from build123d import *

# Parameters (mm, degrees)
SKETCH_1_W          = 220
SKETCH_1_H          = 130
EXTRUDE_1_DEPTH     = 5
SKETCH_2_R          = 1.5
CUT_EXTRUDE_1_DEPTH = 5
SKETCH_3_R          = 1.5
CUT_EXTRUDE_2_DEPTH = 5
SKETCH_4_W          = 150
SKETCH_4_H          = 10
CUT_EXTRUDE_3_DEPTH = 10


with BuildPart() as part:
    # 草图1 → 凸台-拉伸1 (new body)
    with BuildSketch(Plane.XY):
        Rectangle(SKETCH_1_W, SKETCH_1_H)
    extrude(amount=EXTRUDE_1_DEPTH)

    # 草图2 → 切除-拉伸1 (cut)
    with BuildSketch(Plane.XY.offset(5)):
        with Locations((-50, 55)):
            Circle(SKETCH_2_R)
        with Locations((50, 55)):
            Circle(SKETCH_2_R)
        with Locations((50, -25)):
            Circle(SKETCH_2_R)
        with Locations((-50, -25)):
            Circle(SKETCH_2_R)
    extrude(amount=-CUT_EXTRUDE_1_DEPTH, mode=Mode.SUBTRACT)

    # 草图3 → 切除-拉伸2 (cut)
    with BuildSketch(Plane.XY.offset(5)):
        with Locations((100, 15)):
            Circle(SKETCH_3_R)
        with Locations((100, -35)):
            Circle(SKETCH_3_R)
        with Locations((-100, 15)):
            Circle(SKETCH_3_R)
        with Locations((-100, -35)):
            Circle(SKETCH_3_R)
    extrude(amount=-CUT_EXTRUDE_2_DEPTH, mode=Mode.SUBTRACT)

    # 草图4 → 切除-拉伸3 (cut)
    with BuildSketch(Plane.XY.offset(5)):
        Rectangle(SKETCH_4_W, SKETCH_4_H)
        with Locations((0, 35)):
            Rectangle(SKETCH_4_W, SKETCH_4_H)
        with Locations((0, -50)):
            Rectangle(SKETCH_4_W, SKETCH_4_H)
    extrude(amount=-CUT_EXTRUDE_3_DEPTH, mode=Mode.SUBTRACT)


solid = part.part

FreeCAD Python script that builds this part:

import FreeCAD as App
import Part
import Sketcher
Q = App.Units.Quantity

doc = App.newDocument("Part")
body = doc.addObject("PartDesign::Body", "Body")

# Sketch on XY plane
sketch1 = doc.addObject("Sketcher::SketchObject", "Sketch")
body.addObject(sketch1)
sketch1.AttachmentSupport = (doc.XY_Plane, [""])
sketch1.MapMode = "FlatFace"
sketch1.addGeometry([
    Part.LineSegment(App.Vector(-110, 65, 0), App.Vector(-110, -65, 0)),
    Part.LineSegment(App.Vector(-110, -65, 0), App.Vector(110, -65, 0)),
    Part.LineSegment(App.Vector(110, -65, 0), App.Vector(110, 65, 0)),
    Part.LineSegment(App.Vector(110, 65, 0), App.Vector(-110, 65, 0)),
], False)
sketch1.addConstraint([
    Sketcher.Constraint("Coincident", 0, 2, 1, 1),
    Sketcher.Constraint("Coincident", 1, 2, 2, 1),
    Sketcher.Constraint("Coincident", 2, 2, 3, 1),
    Sketcher.Constraint("Coincident", 3, 2, 0, 1),
    Sketcher.Constraint("Vertical", 0),
    Sketcher.Constraint("Horizontal", 1),
    Sketcher.Constraint("Vertical", 2),
    Sketcher.Constraint("Horizontal", 3),
    Sketcher.Constraint("Symmetric", 0, 2, 2, 2, -1, 1),
    Sketcher.Constraint("DistanceX", 1, 1, 1, 2, Q("220 mm")),
    Sketcher.Constraint("DistanceY", 0, 2, 0, 1, Q("130 mm")),
])
pad1 = doc.addObject("PartDesign::Pad", "Pad")
body.addObject(pad1)
pad1.Profile = sketch1
pad1.Length = 5

# Sketch on XY plane
sketch2 = doc.addObject("Sketcher::SketchObject", "Sketch001")
body.addObject(sketch2)
sketch2.AttachmentSupport = (doc.XY_Plane, [""])
sketch2.MapMode = "FlatFace"
sketch2.AttachmentOffset = App.Placement(App.Vector(0, 0, 5), App.Rotation())
sketch2.addGeometry([
    Part.Circle(App.Vector(-50, 55, 0), App.Vector(0, 0, 1), 1.5),
    Part.Circle(App.Vector(50, 55, 0), App.Vector(0, 0, 1), 1.5),
    Part.Circle(App.Vector(50, -25, 0), App.Vector(0, 0, 1), 1.5),
    Part.Circle(App.Vector(-50, -25, 0), App.Vector(0, 0, 1), 1.5),
], False)
sketch2.addConstraint([
    Sketcher.Constraint("Equal", 0, 1),
    Sketcher.Constraint("Equal", 1, 2),
    Sketcher.Constraint("Equal", 2, 3),
    Sketcher.Constraint("Symmetric", 0, 3, 1, 3, -2),
    Sketcher.Constraint("Symmetric", 2, 3, 3, 3, -2),
    Sketcher.Constraint("Vertical", 1, 3, 2, 3),
    Sketcher.Constraint("Diameter", 0, Q("3 mm")),
    Sketcher.Constraint("DistanceX", 0, 3, -1, 1, Q("50 mm")),
    Sketcher.Constraint("DistanceY", -1, 1, 0, 3, Q("55 mm")),
    Sketcher.Constraint("DistanceY", 2, 3, -1, 1, Q("25 mm")),
])
pocket1 = doc.addObject("PartDesign::Pocket", "Pocket")
body.addObject(pocket1)
pocket1.Profile = sketch2
pocket1.Length = 5

# Sketch on XY plane
sketch3 = doc.addObject("Sketcher::SketchObject", "Sketch002")
body.addObject(sketch3)
sketch3.AttachmentSupport = (doc.XY_Plane, [""])
sketch3.MapMode = "FlatFace"
sketch3.AttachmentOffset = App.Placement(App.Vector(0, 0, 5), App.Rotation())
sketch3.addGeometry([
    Part.Circle(App.Vector(100, 15, 0), App.Vector(0, 0, 1), 1.5),
    Part.Circle(App.Vector(100, -35, 0), App.Vector(0, 0, 1), 1.5),
    Part.Circle(App.Vector(-100, 15, 0), App.Vector(0, 0, 1), 1.5),
    Part.Circle(App.Vector(-100, -35, 0), App.Vector(0, 0, 1), 1.5),
], False)
sketch3.addConstraint([
    Sketcher.Constraint("Equal", 0, 1),
    Sketcher.Constraint("Equal", 1, 2),
    Sketcher.Constraint("Equal", 2, 3),
    Sketcher.Constraint("Symmetric", 0, 3, 2, 3, -2),
    Sketcher.Constraint("Symmetric", 1, 3, 3, 3, -2),
    Sketcher.Constraint("Vertical", 0, 3, 1, 3),
    Sketcher.Constraint("Diameter", 0, Q("3 mm")),
    Sketcher.Constraint("DistanceX", -1, 1, 0, 3, Q("100 mm")),
    Sketcher.Constraint("DistanceY", -1, 1, 0, 3, Q("15 mm")),
    Sketcher.Constraint("DistanceY", 1, 3, -1, 1, Q("35 mm")),
])
pocket2 = doc.addObject("PartDesign::Pocket", "Pocket001")
body.addObject(pocket2)
pocket2.Profile = sketch3
pocket2.Length = 5

# Sketch on XY plane
sketch4 = doc.addObject("Sketcher::SketchObject", "Sketch003")
body.addObject(sketch4)
sketch4.AttachmentSupport = (doc.XY_Plane, [""])
sketch4.MapMode = "FlatFace"
sketch4.AttachmentOffset = App.Placement(App.Vector(0, 0, 5), App.Rotation())
sketch4.addGeometry([
    Part.LineSegment(App.Vector(-75, 5, 0), App.Vector(-75, -5, 0)),  # 0
    Part.LineSegment(App.Vector(-75, -5, 0), App.Vector(75, -5, 0)),  # 1
    Part.LineSegment(App.Vector(75, -5, 0), App.Vector(75, 5, 0)),  # 2
    Part.LineSegment(App.Vector(75, 5, 0), App.Vector(-75, 5, 0)),  # 3
    Part.LineSegment(App.Vector(-75, 40, 0), App.Vector(-75, 30, 0)),  # 4
    Part.LineSegment(App.Vector(-75, 30, 0), App.Vector(75, 30, 0)),  # 5
    Part.LineSegment(App.Vector(75, 30, 0), App.Vector(75, 40, 0)),  # 6
    Part.LineSegment(App.Vector(75, 40, 0), App.Vector(-75, 40, 0)),  # 7
    Part.LineSegment(App.Vector(-75, -45, 0), App.Vector(-75, -55, 0)),  # 8
    Part.LineSegment(App.Vector(-75, -55, 0), App.Vector(75, -55, 0)),  # 9
    Part.LineSegment(App.Vector(75, -55, 0), App.Vector(75, -45, 0)),  # 10
    Part.LineSegment(App.Vector(75, -45, 0), App.Vector(-75, -45, 0)),  # 11
], False)
sketch4.addConstraint([
    Sketcher.Constraint("Coincident", 0, 2, 1, 1),
    Sketcher.Constraint("Coincident", 1, 2, 2, 1),
    Sketcher.Constraint("Coincident", 2, 2, 3, 1),
    Sketcher.Constraint("Coincident", 3, 2, 0, 1),
    Sketcher.Constraint("Coincident", 4, 2, 5, 1),
    Sketcher.Constraint("Coincident", 5, 2, 6, 1),
    Sketcher.Constraint("Coincident", 6, 2, 7, 1),
    Sketcher.Constraint("Coincident", 7, 2, 4, 1),
    Sketcher.Constraint("Coincident", 8, 2, 9, 1),
    Sketcher.Constraint("Coincident", 9, 2, 10, 1),
    Sketcher.Constraint("Coincident", 10, 2, 11, 1),
    Sketcher.Constraint("Coincident", 11, 2, 8, 1),
    Sketcher.Constraint("Vertical", 0),
    Sketcher.Constraint("Horizontal", 1),
    Sketcher.Constraint("Vertical", 2),
    Sketcher.Constraint("Horizontal", 3),
    Sketcher.Constraint("Vertical", 4),
    Sketcher.Constraint("Horizontal", 5),
    Sketcher.Constraint("Vertical", 6),
    Sketcher.Constraint("Horizontal", 7),
    Sketcher.Constraint("Vertical", 8),
    Sketcher.Constraint("Horizontal", 9),
    Sketcher.Constraint("Vertical", 10),
    Sketcher.Constraint("Horizontal", 11),
    Sketcher.Constraint("Symmetric", 0, 2, 2, 2, -1, 1),
    Sketcher.Constraint("Vertical", 3, 2, 4, 2),
    Sketcher.Constraint("Vertical", 2, 2, 5, 2),
    Sketcher.Constraint("Vertical", 7, 2, 8, 2),
    Sketcher.Constraint("Vertical", 6, 2, 9, 2),
    Sketcher.Constraint("Equal", 2, 4),
    Sketcher.Constraint("Equal", 6, 8),
    Sketcher.Constraint("DistanceX", 1, 1, 1, 2, Q("150 mm")),
    Sketcher.Constraint("DistanceY", 0, 2, 0, 1, Q("10 mm")),
    Sketcher.Constraint("DistanceY", -1, 1, 4, 2, Q("30 mm")),
    Sketcher.Constraint("DistanceY", 8, 2, -1, 1, Q("55 mm")),
])
pocket3 = doc.addObject("PartDesign::Pocket", "Pocket002")
body.addObject(pocket3)
pocket3.Profile = sketch4
pocket3.Length = 10

doc.recompute()
